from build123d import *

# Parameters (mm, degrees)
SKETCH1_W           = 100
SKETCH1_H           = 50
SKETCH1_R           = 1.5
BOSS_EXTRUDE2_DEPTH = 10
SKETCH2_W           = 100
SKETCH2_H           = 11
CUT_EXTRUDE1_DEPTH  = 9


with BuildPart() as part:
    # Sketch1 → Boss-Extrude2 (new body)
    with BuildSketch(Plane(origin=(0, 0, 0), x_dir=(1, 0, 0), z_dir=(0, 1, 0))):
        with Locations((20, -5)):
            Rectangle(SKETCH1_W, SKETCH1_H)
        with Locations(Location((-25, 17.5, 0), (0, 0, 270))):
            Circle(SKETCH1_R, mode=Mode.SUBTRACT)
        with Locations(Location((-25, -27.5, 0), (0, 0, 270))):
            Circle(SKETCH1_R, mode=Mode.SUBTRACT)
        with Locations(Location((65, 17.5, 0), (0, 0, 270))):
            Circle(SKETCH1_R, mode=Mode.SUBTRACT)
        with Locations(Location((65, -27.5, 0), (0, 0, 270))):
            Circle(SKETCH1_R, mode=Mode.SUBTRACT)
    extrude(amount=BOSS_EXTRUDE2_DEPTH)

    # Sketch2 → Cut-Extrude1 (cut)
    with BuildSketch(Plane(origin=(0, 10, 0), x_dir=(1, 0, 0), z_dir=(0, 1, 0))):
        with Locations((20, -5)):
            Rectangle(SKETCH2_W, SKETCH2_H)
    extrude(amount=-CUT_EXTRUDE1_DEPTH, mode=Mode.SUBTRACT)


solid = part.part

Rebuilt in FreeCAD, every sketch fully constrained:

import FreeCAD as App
import Part
import Sketcher

V = App.Vector

doc = App.newDocument("Part")
body = doc.addObject("PartDesign::Body", "Body")

# Sketch on XZ plane
sketch1 = doc.addObject("Sketcher::SketchObject", "Sketch")
body.addObject(sketch1)
sketch1.AttachmentSupport = (doc.XZ_Plane, [""])
sketch1.MapMode = "FlatFace"
sketch1.addGeometry(Part.LineSegment(V(-30, -20, 0), V(-30, 30, 0)), False)
sketch1.addGeometry(Part.LineSegment(V(-30, 30, 0), V(70, 30, 0)), False)
sketch1.addGeometry(Part.LineSegment(V(70, 30, 0), V(70, -20, 0)), False)
sketch1.addGeometry(Part.LineSegment(V(70, -20, 0), V(-30, -20, 0)), False)
sketch1.addGeometry(Part.Circle(V(-25, 27.5, 0), V(0, 0, 1), 1.5), False)
sketch1.addGeometry(Part.Circle(V(65, 27.5, 0), V(0, 0, 1), 1.5), False)
sketch1.addGeometry(Part.Circle(V(-25, -17.5, 0), V(0, 0, 1), 1.5), False)
sketch1.addGeometry(Part.Circle(V(65, -17.5, 0), V(0, 0, 1), 1.5), False)
sketch1.addConstraint(Sketcher.Constraint("Coincident", 0, 2, 1, 1))
sketch1.addConstraint(Sketcher.Constraint("Coincident", 1, 2, 2, 1))
sketch1.addConstraint(Sketcher.Constraint("Coincident", 2, 2, 3, 1))
sketch1.addConstraint(Sketcher.Constraint("Coincident", 3, 2, 0, 1))
sketch1.addConstraint(Sketcher.Constraint("Vertical", 0))
sketch1.addConstraint(Sketcher.Constraint("Horizontal", 1))
sketch1.addConstraint(Sketcher.Constraint("Vertical", 2))
sketch1.addConstraint(Sketcher.Constraint("Horizontal", 3))
sketch1.addConstraint(Sketcher.Constraint("Equal", 4, 5))
sketch1.addConstraint(Sketcher.Constraint("Equal", 5, 6))
sketch1.addConstraint(Sketcher.Constraint("Equal", 6, 7))
sketch1.addConstraint(Sketcher.Constraint("Horizontal", 4, 3, 5, 3))
sketch1.addConstraint(Sketcher.Constraint("Horizontal", 6, 3, 7, 3))
sketch1.addConstraint(Sketcher.Constraint("Vertical", 4, 3, 6, 3))
sketch1.addConstraint(Sketcher.Constraint("Vertical", 5, 3, 7, 3))
sketch1.addConstraint(Sketcher.Constraint("Diameter", 4, 3.0))
sketch1.addConstraint(Sketcher.Constraint("DistanceX", 1, 1, 1, 2, 100.0))
sketch1.addConstraint(Sketcher.Constraint("DistanceY", 0, 1, 0, 2, 50.0))
sketch1.addConstraint(Sketcher.Constraint("DistanceX", 4, 3, -1, 1, 25.0))
sketch1.addConstraint(Sketcher.Constraint("DistanceX", -1, 1, 5, 3, 65.0))
sketch1.addConstraint(Sketcher.Constraint("DistanceX", 0, 2, -1, 1, 30.0))
sketch1.addConstraint(Sketcher.Constraint("DistanceY", -1, 1, 0, 2, 30.0))
sketch1.addConstraint(Sketcher.Constraint("DistanceY", 6, 3, 4, 3, 45.0))
sketch1.addConstraint(Sketcher.Constraint("DistanceY", -1, 1, 4, 3, 27.5))
pad1 = doc.addObject("PartDesign::Pad", "Pad")
body.addObject(pad1)
pad1.Profile = sketch1
pad1.Length = 10
pad1.Reversed = True

# Sketch on XZ plane
sketch2 = doc.addObject("Sketcher::SketchObject", "Sketch001")
body.addObject(sketch2)
sketch2.AttachmentSupport = (doc.XZ_Plane, [""])
sketch2.MapMode = "FlatFace"
sketch2.AttachmentOffset = App.Placement(V(0, 0, -10), App.Rotation())
sketch2.addGeometry(Part.LineSegment(V(-30, -0.5, 0), V(-30, 10.5, 0)), False)
sketch2.addGeometry(Part.LineSegment(V(-30, 10.5, 0), V(70, 10.5, 0)), False)
sketch2.addGeometry(Part.LineSegment(V(70, 10.5, 0), V(70, -0.5, 0)), False)
sketch2.addGeometry(Part.LineSegment(V(70, -0.5, 0), V(-30, -0.5, 0)), False)
sketch2.addConstraint(Sketcher.Constraint("Coincident", 0, 2, 1, 1))
sketch2.addConstraint(Sketcher.Constraint("Coincident", 1, 2, 2, 1))
sketch2.addConstraint(Sketcher.Constraint("Coincident", 2, 2, 3, 1))
sketch2.addConstraint(Sketcher.Constraint("Coincident", 3, 2, 0, 1))
sketch2.addConstraint(Sketcher.Constraint("Vertical", 0))
sketch2.addConstraint(Sketcher.Constraint("Horizontal", 1))
sketch2.addConstraint(Sketcher.Constraint("Vertical", 2))
sketch2.addConstraint(Sketcher.Constraint("Horizontal", 3))
sketch2.addConstraint(Sketcher.Constraint("DistanceX", 1, 1, 1, 2, 100.0))
sketch2.addConstraint(Sketcher.Constraint("DistanceY", 0, 1, 0, 2, 11.0))
sketch2.addConstraint(Sketcher.Constraint("DistanceX", 0, 2, -1, 1, 30.0))
sketch2.addConstraint(Sketcher.Constraint("DistanceY", -1, 1, 0, 2, 10.5))
pocket1 = doc.addObject("PartDesign::Pocket", "Pocket")
body.addObject(pocket1)
pocket1.Profile = sketch2
pocket1.Length = 9
pocket1.Reversed = True

doc.recompute()
